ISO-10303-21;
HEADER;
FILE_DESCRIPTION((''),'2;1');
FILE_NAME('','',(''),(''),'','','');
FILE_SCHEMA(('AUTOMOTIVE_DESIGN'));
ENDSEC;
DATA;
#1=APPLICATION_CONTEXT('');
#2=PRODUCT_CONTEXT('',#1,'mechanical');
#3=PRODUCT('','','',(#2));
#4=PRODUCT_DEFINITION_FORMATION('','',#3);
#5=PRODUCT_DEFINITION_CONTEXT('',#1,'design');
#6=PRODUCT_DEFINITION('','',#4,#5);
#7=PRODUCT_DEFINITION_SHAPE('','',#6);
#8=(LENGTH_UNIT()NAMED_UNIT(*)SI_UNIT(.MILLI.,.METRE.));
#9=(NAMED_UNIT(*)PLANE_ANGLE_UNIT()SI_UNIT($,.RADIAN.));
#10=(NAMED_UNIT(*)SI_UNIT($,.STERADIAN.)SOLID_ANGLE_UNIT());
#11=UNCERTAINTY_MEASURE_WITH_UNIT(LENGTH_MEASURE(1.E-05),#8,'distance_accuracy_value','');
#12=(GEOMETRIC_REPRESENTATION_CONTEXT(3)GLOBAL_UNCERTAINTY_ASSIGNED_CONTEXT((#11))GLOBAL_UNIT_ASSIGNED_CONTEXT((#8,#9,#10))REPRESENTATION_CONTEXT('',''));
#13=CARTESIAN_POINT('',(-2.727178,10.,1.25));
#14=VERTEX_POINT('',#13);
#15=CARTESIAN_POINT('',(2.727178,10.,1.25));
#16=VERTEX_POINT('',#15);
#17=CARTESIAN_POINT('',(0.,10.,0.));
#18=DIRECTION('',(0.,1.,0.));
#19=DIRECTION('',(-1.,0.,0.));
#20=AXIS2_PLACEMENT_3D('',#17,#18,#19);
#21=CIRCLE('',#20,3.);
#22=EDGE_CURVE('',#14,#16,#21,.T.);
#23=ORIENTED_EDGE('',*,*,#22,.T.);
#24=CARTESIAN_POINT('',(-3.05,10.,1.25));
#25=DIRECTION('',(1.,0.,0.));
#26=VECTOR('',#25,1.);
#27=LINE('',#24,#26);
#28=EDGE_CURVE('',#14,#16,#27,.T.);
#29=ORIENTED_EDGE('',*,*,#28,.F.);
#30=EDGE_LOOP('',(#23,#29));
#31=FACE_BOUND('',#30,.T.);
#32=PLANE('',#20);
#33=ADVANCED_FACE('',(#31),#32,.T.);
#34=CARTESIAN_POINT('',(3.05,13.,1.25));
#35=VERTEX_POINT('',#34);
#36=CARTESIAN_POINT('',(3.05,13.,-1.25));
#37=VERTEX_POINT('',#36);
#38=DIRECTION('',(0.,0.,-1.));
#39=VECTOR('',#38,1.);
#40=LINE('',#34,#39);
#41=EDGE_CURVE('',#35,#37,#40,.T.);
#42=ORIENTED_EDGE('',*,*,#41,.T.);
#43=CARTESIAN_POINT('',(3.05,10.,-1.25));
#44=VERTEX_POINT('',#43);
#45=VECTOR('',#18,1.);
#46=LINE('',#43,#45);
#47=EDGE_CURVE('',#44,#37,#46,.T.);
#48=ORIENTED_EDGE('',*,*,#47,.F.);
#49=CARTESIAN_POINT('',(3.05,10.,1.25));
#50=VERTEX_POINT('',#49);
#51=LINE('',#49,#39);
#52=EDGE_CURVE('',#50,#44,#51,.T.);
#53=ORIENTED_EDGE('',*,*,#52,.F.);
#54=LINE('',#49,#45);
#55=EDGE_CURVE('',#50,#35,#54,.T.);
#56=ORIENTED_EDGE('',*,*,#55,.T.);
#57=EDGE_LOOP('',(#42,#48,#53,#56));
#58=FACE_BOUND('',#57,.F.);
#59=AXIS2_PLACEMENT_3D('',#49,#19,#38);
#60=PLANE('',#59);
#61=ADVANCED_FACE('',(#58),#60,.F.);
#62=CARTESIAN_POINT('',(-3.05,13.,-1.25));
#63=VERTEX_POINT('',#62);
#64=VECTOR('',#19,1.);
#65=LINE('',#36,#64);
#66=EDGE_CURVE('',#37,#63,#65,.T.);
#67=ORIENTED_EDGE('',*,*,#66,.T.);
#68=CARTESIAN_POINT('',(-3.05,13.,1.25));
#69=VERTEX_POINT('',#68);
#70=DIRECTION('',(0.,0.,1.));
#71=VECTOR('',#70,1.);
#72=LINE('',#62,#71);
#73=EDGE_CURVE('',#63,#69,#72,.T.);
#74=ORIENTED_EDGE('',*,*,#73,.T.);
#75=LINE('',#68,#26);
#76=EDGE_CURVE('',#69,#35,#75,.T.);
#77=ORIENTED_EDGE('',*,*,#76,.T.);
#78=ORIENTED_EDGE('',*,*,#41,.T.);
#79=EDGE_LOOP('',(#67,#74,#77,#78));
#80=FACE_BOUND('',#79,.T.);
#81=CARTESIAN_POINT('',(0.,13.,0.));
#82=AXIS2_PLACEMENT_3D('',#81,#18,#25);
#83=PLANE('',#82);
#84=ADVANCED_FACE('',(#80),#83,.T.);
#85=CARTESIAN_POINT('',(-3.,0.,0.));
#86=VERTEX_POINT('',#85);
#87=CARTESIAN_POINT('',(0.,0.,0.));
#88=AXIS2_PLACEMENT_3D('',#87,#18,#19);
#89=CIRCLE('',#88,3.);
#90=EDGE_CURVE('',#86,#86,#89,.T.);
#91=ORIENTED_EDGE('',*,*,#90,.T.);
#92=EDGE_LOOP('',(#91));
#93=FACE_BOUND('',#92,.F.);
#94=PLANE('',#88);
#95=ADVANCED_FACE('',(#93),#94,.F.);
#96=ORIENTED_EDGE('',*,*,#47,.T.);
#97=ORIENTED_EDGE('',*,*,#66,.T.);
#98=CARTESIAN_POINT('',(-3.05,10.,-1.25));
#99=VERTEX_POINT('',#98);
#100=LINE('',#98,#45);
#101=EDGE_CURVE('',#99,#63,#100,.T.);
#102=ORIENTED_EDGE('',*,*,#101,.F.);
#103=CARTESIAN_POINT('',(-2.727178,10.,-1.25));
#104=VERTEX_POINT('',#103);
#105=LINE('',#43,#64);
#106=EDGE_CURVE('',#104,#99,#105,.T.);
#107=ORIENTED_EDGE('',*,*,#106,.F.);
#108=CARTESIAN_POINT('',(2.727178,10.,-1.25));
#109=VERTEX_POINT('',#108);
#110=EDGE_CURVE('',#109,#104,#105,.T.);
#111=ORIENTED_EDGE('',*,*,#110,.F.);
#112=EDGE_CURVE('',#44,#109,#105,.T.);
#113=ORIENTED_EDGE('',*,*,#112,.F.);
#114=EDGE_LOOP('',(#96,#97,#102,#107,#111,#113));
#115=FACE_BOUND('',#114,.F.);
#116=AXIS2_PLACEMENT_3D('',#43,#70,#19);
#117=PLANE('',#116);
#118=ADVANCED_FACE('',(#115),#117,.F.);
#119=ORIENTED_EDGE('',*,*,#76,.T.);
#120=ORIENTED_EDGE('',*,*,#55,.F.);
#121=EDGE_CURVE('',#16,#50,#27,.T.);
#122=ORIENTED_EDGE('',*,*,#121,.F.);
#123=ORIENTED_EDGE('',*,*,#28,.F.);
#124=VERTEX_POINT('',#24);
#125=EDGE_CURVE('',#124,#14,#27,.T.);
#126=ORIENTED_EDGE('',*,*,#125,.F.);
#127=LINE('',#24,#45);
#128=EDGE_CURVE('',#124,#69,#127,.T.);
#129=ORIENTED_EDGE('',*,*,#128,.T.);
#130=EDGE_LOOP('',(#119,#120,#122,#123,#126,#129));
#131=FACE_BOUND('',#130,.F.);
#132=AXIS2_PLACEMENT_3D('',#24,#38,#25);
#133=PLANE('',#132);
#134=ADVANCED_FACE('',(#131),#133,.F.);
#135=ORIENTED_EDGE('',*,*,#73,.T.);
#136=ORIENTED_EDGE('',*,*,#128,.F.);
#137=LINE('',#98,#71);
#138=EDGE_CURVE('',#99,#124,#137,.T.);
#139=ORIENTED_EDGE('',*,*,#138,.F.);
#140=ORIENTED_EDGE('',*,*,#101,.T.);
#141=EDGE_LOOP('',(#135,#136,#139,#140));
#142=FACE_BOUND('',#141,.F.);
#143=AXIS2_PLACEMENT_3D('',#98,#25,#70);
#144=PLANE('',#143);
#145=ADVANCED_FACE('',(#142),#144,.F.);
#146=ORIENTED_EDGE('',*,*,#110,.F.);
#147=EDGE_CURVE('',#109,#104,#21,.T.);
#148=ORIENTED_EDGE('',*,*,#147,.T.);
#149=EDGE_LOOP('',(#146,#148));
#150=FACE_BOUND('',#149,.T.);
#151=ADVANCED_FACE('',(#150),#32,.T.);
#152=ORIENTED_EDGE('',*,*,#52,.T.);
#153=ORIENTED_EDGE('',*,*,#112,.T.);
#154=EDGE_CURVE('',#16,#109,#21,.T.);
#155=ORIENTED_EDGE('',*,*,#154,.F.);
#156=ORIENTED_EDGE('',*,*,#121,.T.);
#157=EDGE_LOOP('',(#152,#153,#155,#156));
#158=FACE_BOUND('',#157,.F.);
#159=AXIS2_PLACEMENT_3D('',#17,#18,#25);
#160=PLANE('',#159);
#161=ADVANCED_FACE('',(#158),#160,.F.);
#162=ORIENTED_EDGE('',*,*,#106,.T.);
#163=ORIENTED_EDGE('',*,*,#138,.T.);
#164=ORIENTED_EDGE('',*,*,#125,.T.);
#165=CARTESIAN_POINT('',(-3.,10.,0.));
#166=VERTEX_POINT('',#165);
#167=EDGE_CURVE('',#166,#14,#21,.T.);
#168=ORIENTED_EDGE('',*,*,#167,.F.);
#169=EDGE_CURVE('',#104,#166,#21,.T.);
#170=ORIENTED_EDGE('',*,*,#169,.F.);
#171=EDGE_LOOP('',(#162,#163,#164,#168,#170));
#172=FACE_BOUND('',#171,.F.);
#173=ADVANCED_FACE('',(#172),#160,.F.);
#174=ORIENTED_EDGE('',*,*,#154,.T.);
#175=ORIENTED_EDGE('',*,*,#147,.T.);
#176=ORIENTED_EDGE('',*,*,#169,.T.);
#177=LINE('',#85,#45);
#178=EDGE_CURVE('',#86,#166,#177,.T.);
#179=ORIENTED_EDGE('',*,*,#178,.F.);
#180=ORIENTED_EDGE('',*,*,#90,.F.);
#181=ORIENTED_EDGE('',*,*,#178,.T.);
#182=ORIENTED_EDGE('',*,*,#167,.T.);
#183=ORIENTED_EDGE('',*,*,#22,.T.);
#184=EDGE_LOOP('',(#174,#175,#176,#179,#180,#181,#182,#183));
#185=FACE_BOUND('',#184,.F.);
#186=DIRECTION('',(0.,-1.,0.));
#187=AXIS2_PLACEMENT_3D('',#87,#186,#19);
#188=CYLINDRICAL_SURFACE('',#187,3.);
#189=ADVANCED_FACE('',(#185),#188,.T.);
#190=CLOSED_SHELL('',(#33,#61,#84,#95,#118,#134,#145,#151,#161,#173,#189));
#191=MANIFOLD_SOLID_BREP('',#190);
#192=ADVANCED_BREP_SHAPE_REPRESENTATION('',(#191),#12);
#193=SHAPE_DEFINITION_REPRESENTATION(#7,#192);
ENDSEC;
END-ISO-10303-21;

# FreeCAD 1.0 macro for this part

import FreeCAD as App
import Part
import Sketcher

V = App.Vector
Q = App.Units.Quantity

doc = App.newDocument("Part")
body = doc.addObject("PartDesign::Body", "Body")

# Sketch on XZ plane
sketch1 = body.newObject("Sketcher::SketchObject", "Sketch")
sketch1.AttachmentSupport = (doc.getObject("XZ_Plane"), [""])
sketch1.MapMode = "FlatFace"
sketch1.addGeometry(Part.Circle(V(0, 0, 0), V(0, 0, 1), 3), False)
sketch1.addConstraint(Sketcher.Constraint("Coincident", 0, 3, -1, 1))
sketch1.addConstraint(Sketcher.Constraint("Diameter", 0, Q("6 mm")))
pad1 = body.newObject("PartDesign::Pad", "Pad")
pad1.Profile = sketch1
pad1.Length = 10
pad1.Reversed = True

# Sketch on XZ plane
sketch2 = body.newObject("Sketcher::SketchObject", "Sketch001")
sketch2.AttachmentSupport = (doc.getObject("XZ_Plane"), [""])
sketch2.MapMode = "FlatFace"
sketch2.AttachmentOffset = App.Placement(V(0, 0, -10), App.Rotation())
sketch2.addGeometry(Part.LineSegment(V(-3.05, -1.25, 0), V(-3.05, 1.25, 0)), False)
sketch2.addGeometry(Part.LineSegment(V(-3.05, 1.25, 0), V(3.05, 1.25, 0)), False)
sketch2.addGeometry(Part.LineSegment(V(3.05, 1.25, 0), V(3.05, -1.25, 0)), False)
sketch2.addGeometry(Part.LineSegment(V(3.05, -1.25, 0), V(-3.05, -1.25, 0)), False)
sketch2.addConstraint(Sketcher.Constraint("Coincident", 0, 2, 1, 1))
sketch2.addConstraint(Sketcher.Constraint("Coincident", 1, 2, 2, 1))
sketch2.addConstraint(Sketcher.Constraint("Coincident", 2, 2, 3, 1))
sketch2.addConstraint(Sketcher.Constraint("Coincident", 3, 2, 0, 1))
sketch2.addConstraint(Sketcher.Constraint("Vertical", 0))
sketch2.addConstraint(Sketcher.Constraint("Horizontal", 1))
sketch2.addConstraint(Sketcher.Constraint("Vertical", 2))
sketch2.addConstraint(Sketcher.Constraint("Horizontal", 3))
sketch2.addConstraint(Sketcher.Constraint("Symmetric", 0, 2, 2, 2, -1, 1))
sketch2.addConstraint(Sketcher.Constraint("DistanceX", 1, 1, 1, 2, Q("6.1 mm")))
sketch2.addConstraint(Sketcher.Constraint("DistanceY", 0, 1, 0, 2, Q("2.5 mm")))
pad2 = body.newObject("PartDesign::Pad", "Pad001")
pad2.Profile = sketch2
pad2.Length = 3
pad2.Reversed = True

doc.recompute()
